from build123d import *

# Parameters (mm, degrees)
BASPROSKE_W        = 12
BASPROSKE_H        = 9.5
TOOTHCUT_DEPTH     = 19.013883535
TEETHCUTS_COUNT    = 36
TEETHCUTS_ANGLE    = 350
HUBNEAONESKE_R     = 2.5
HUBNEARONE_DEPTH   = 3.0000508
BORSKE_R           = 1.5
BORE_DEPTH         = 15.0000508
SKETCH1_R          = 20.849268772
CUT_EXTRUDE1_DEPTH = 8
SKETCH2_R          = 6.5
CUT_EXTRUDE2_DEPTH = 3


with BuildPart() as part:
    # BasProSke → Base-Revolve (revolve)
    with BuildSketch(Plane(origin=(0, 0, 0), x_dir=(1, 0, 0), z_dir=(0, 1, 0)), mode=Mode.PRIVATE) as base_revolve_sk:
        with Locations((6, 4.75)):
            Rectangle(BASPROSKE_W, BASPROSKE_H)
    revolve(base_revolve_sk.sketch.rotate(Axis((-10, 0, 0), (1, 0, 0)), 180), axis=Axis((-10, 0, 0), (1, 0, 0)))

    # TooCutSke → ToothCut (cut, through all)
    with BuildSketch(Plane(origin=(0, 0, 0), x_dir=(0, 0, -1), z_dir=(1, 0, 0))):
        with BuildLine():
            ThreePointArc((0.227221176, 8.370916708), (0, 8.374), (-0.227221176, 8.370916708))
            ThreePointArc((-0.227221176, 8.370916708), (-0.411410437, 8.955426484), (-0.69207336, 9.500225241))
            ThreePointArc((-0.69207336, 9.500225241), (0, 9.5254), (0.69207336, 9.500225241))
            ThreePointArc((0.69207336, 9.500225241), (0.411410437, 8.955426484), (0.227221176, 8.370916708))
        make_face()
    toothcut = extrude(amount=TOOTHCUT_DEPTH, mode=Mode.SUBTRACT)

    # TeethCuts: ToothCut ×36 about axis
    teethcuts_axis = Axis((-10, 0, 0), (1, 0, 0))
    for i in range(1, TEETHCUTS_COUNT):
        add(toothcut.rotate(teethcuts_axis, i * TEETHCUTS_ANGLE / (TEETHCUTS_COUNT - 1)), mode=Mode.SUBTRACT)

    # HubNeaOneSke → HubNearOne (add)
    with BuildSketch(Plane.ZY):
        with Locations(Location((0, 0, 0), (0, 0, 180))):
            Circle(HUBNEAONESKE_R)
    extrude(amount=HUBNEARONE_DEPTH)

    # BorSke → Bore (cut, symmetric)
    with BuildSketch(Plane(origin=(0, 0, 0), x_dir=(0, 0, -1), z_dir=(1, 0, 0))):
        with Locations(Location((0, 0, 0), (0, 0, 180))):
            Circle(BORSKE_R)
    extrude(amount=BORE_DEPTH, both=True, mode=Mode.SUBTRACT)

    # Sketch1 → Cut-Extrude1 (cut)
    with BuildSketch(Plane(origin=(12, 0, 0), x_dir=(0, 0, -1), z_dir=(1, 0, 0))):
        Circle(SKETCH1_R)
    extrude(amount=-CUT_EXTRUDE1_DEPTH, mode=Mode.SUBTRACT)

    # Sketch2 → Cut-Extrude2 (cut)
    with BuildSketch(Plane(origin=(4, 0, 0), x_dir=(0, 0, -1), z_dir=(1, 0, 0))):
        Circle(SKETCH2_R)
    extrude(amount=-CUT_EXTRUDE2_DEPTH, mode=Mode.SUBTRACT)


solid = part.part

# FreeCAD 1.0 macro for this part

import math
import FreeCAD as App
import Part
import Sketcher

V = App.Vector
Q = App.Units.Quantity


def add_polygon(sketch, points):
    """Adds a closed chain of lines whose ends are joined by coincident constraints."""
    first, n = sketch.GeometryCount, len(points)
    for a, b in zip(points, points[1:] + points[:1]):
        sketch.addGeometry(Part.LineSegment(App.Vector(*a, 0), App.Vector(*b, 0)), False)
    for i in range(n):
        sketch.addConstraint(Sketcher.Constraint("Coincident", first + i, 2, first + (i + 1) % n, 1))

doc = App.newDocument("Part")
body = doc.addObject("PartDesign::Body", "Body")

# Sketch on XZ plane
sketch1 = body.newObject("Sketcher::SketchObject", "Sketch")
sketch1.AttachmentSupport = (doc.getObject("XZ_Plane"), [""])
sketch1.MapMode = "FlatFace"
add_polygon(sketch1, [(0, -10), (0, 0), (12, 0), (12, -10)])  # lines 0-3
sketch1.addConstraint([
    Sketcher.Constraint("Vertical", 0),
    Sketcher.Constraint("Horizontal", 1),
    Sketcher.Constraint("Vertical", 2),
    Sketcher.Constraint("Horizontal", 3),
    Sketcher.Constraint("Coincident", 0, 2, -1, 1),
    Sketcher.Constraint("DistanceX", 1, 1, 1, 2, Q("12 mm")),
    Sketcher.Constraint("DistanceY", 0, 1, 0, 2, Q("9.5 mm")),
])
revolution = body.newObject("PartDesign::Revolution", "Revolution")
revolution.Profile = sketch1
revolution.ReferenceAxis = (sketch1, ["H_Axis"])
revolution.Angle = 360

# Sketch on YZ plane
sketch2 = body.newObject("Sketcher::SketchObject", "Sketch001")
sketch2.AttachmentSupport = (doc.getObject("YZ_Plane"), [""])
sketch2.MapMode = "FlatFace"
sketch2.addGeometry([
    Part.ArcOfCircle(Part.Circle(V(0, 0, 0), V(0, 0, 1), 8.37), math.radians(-1.55), math.radians(1.55)),
    Part.ArcOfCircle(Part.Circle(V(7.59, -3.74, 0), V(0, 0, 1), 3.6), math.radians(57.86), math.radians(77.39)),
    Part.ArcOfCircle(Part.Circle(V(0, 0, 0), V(0, 0, 1), 9.53), math.radians(-4.17), math.radians(4.17)),
    Part.ArcOfCircle(Part.Circle(V(7.59, 3.74, 0), V(0, 0, 1), 3.6), math.radians(-77.39), math.radians(-57.86)),
], False)
sketch2.addConstraint([
    Sketcher.Constraint("Coincident", 0, 1, 1, 2),
    Sketcher.Constraint("Coincident", 1, 1, 2, 1),
    Sketcher.Constraint("Coincident", 2, 2, 3, 2),
    Sketcher.Constraint("Coincident", 3, 1, 0, 2),
    Sketcher.Constraint("Coincident", 0, 3, -1, 1),
    Sketcher.Constraint("Coincident", 2, 3, -1, 1),
    Sketcher.Constraint("Equal", 1, 3),
    Sketcher.Constraint("Symmetric", 1, 3, 3, 3, -1),
    Sketcher.Constraint("Radius", 1, Q("3.6 mm")),
    Sketcher.Constraint("Radius", 0, Q("8.373999 mm")),
    Sketcher.Constraint("Radius", 2, Q("9.5254 mm")),
    Sketcher.Constraint("DistanceX", 1, 3, 1, 1, Q("1.915102 mm")),
    Sketcher.Constraint("DistanceY", 0, 1, -1, 1, Q("0.227221 mm")),
])
pocket1 = body.newObject("PartDesign::Pocket", "Pocket")
pocket1.Profile = sketch2
pocket1.Type = "ThroughAll"
pocket1.Reversed = True
doc.recompute()

polarpattern = body.newObject("PartDesign::PolarPattern", "PolarPattern")
polarpattern.Originals = [pocket1]
polarpattern.Axis = (doc.getObject("X_Axis"), [""])
polarpattern.Angle = 360
polarpattern.Occurrences = 36
body.Tip = polarpattern

# Sketch on YZ plane
sketch3 = body.newObject("Sketcher::SketchObject", "Sketch002")
sketch3.AttachmentSupport = (doc.getObject("YZ_Plane"), [""])
sketch3.MapMode = "FlatFace"
sketch3.addGeometry(Part.Circle(V(0, 0, 0), V(0, 0, 1), 2.5), False)
sketch3.addConstraint([
    Sketcher.Constraint("Coincident", 0, 3, -1, 1),
    Sketcher.Constraint("Diameter", 0, Q("5 mm")),
])
pad1 = body.newObject("PartDesign::Pad", "Pad")
pad1.Profile = sketch3
pad1.Length = 3.000051
pad1.Reversed = True

# Sketch on YZ plane
sketch4 = body.newObject("Sketcher::SketchObject", "Sketch003")
sketch4.AttachmentSupport = (doc.getObject("YZ_Plane"), [""])
sketch4.MapMode = "FlatFace"
sketch4.addGeometry(Part.Circle(V(0, 0, 0), V(0, 0, 1), 1.5), False)
sketch4.addConstraint([
    Sketcher.Constraint("Coincident", 0, 3, -1, 1),
    Sketcher.Constraint("Diameter", 0, Q("3 mm")),
])
pocket2 = body.newObject("PartDesign::Pocket", "Pocket001")
pocket2.Profile = sketch4
pocket2.Length = 30.000102
pocket2.Midplane = True

# Sketch on YZ plane
sketch5 = body.newObject("Sketcher::SketchObject", "Sketch004")
sketch5.AttachmentSupport = (doc.getObject("YZ_Plane"), [""])
sketch5.MapMode = "FlatFace"
sketch5.AttachmentOffset = App.Placement(V(0, 0, 12), App.Rotation())
sketch5.addGeometry(Part.Circle(V(0, 0, 0), V(0, 0, 1), 21), False)
sketch5.addConstraint([
    Sketcher.Constraint("Coincident", 0, 3, -1, 1),
    Sketcher.Constraint("Diameter", 0, Q("41.698538 mm")),
])
pocket3 = body.newObject("PartDesign::Pocket", "Pocket002")
pocket3.Profile = sketch5
pocket3.Length = 8

# Sketch on YZ plane
sketch6 = body.newObject("Sketcher::SketchObject", "Sketch005")
sketch6.AttachmentSupport = (doc.getObject("YZ_Plane"), [""])
sketch6.MapMode = "FlatFace"
sketch6.AttachmentOffset = App.Placement(V(0, 0, 4), App.Rotation())
sketch6.addGeometry(Part.Circle(V(0, 0, 0), V(0, 0, 1), 6), False)
sketch6.addConstraint([
    Sketcher.Constraint("Coincident", 0, 3, -1, 1),
    Sketcher.Constraint("Diameter", 0, Q("13 mm")),
])
pocket4 = body.newObject("PartDesign::Pocket", "Pocket003")
pocket4.Profile = sketch6
pocket4.Length = 3

doc.recompute()
